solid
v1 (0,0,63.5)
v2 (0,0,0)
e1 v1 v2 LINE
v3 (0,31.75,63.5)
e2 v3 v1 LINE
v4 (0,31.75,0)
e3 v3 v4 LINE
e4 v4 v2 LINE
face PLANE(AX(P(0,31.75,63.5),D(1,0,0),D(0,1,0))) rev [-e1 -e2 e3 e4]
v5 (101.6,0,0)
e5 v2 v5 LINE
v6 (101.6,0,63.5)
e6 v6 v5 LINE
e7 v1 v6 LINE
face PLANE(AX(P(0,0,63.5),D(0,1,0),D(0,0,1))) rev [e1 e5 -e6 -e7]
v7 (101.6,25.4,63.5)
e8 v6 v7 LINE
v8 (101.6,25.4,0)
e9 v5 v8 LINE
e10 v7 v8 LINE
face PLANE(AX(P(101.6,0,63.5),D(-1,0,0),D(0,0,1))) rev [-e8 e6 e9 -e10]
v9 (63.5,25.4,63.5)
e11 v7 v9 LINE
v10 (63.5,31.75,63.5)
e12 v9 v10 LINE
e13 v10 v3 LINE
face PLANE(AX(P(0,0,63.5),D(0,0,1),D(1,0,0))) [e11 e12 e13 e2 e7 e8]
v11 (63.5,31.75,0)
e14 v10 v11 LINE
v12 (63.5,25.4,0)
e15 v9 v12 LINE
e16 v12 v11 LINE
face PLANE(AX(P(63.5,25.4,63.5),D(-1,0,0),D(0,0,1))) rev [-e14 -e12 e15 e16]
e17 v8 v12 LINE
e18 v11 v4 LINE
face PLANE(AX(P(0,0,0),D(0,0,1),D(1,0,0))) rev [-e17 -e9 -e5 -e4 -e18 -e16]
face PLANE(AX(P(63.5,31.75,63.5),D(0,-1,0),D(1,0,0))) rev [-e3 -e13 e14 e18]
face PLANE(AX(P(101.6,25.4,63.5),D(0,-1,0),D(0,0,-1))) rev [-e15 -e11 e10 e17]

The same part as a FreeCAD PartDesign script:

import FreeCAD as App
import Part
import Sketcher
Q = App.Units.Quantity

doc = App.newDocument("Part")
body = doc.addObject("PartDesign::Body", "Body")

# Sketch on XY plane
sketch1 = doc.addObject("Sketcher::SketchObject", "Sketch")
body.addObject(sketch1)
sketch1.AttachmentSupport = (doc.XY_Plane, [""])
sketch1.MapMode = "FlatFace"
sketch1.addGeometry([
    Part.LineSegment(App.Vector(0, 0, 0), App.Vector(101.6, 0, 0)),  # 0
    Part.LineSegment(App.Vector(101.6, 0, 0), App.Vector(101.6, 25.4, 0)),  # 1
    Part.LineSegment(App.Vector(101.6, 25.4, 0), App.Vector(63.5, 25.4, 0)),  # 2
    Part.LineSegment(App.Vector(63.5, 25.4, 0), App.Vector(63.5, 31.75, 0)),  # 3
    Part.LineSegment(App.Vector(63.5, 31.75, 0), App.Vector(0, 31.75, 0)),  # 4
    Part.LineSegment(App.Vector(0, 31.75, 0), App.Vector(0, 0, 0)),  # 5
], False)
sketch1.addConstraint([
    Sketcher.Constraint("Coincident", 0, 2, 1, 1),
    Sketcher.Constraint("Coincident", 1, 2, 2, 1),
    Sketcher.Constraint("Coincident", 2, 2, 3, 1),
    Sketcher.Constraint("Coincident", 3, 2, 4, 1),
    Sketcher.Constraint("Coincident", 4, 2, 5, 1),
    Sketcher.Constraint("Coincident", 5, 2, 0, 1),
    Sketcher.Constraint("Horizontal", 0),
    Sketcher.Constraint("Vertical", 1),
    Sketcher.Constraint("Horizontal", 2),
    Sketcher.Constraint("Vertical", 3),
    Sketcher.Constraint("Horizontal", 4),
    Sketcher.Constraint("Vertical", 5),
    Sketcher.Constraint("Coincident", 5, 2, -1, 1),
    Sketcher.Constraint("DistanceX", 0, 1, 0, 2, Q("4 in")),
    Sketcher.Constraint("DistanceY", 1, 1, 1, 2, Q("1 in")),
    Sketcher.Constraint("DistanceX", 2, 2, 2, 1, Q("1.5 in")),
    Sketcher.Constraint("DistanceY", 3, 1, 3, 2, Q("0.25 in")),
])
pad1 = doc.addObject("PartDesign::Pad", "Pad")
body.addObject(pad1)
pad1.Profile = sketch1
pad1.Length = Q("2.5 in")

doc.recompute()
